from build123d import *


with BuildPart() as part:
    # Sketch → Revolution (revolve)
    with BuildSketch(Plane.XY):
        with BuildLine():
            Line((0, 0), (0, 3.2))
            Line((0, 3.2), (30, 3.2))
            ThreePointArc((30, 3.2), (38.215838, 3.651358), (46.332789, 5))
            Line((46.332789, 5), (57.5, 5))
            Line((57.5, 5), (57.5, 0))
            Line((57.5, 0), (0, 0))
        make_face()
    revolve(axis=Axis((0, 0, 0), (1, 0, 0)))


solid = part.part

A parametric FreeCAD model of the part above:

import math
import FreeCAD as App
import Part
import Sketcher
Q = App.Units.Quantity

doc = App.newDocument("Part")
body = doc.addObject("PartDesign::Body", "Body")

# Sketch on XY plane
sketch1 = body.newObject("Sketcher::SketchObject", "Sketch")
sketch1.AttachmentSupport = (doc.getObject("XY_Plane"), [""])
sketch1.MapMode = "FlatFace"
sketch1.addGeometry([
    Part.LineSegment(App.Vector(0, 3.2, 0), App.Vector(0, 0, 0)),  # 0
    Part.LineSegment(App.Vector(0, 0, 0), App.Vector(57.5, 0, 0)),  # 1
    Part.LineSegment(App.Vector(57.5, 0, 0), App.Vector(57.5, 5, 0)),  # 2
    Part.LineSegment(App.Vector(57.5, 5, 0), App.Vector(46.332789, 5, 0)),  # 3
    Part.ArcOfCircle(Part.Circle(App.Vector(30.000002, 78.199978, 0), App.Vector(0, 0, 1), 74.999978), math.radians(-90.000002), math.radians(-77.42188)),  # 4
    Part.LineSegment(App.Vector(30, 3.2, 0), App.Vector(0, 3.2, 0)),  # 5
], False)
sketch1.addConstraint([
    Sketcher.Constraint("Coincident", 0, 2, 1, 1),
    Sketcher.Constraint("Coincident", 1, 2, 2, 1),
    Sketcher.Constraint("Coincident", 2, 2, 3, 1),
    Sketcher.Constraint("Coincident", 3, 2, 4, 2),
    Sketcher.Constraint("Tangent", 4, 1, 5, 1),
    Sketcher.Constraint("Coincident", 5, 2, 0, 1),
    Sketcher.Constraint("Vertical", 0),
    Sketcher.Constraint("Horizontal", 1),
    Sketcher.Constraint("Vertical", 2),
    Sketcher.Constraint("Horizontal", 3),
    Sketcher.Constraint("Horizontal", 5),
    Sketcher.Constraint("Coincident", 0, 2, -1, 1),
    Sketcher.Constraint("DistanceX", 5, 2, 5, 1, Q("30 mm")),
    Sketcher.Constraint("DistanceY", 2, 1, 2, 2, Q("5 mm")),
    Sketcher.Constraint("DistanceX", 1, 1, 1, 2, Q("57.5 mm")),
    Sketcher.Constraint("DistanceY", 0, 2, 0, 1, Q("3.2 mm")),
    Sketcher.Constraint("Radius", 4, Q("74.999978 mm")),
])
revolution = body.newObject("PartDesign::Revolution", "Revolution")
revolution.Profile = sketch1
revolution.ReferenceAxis = (sketch1, ["H_Axis"])
revolution.Angle = 360

doc.recompute()
